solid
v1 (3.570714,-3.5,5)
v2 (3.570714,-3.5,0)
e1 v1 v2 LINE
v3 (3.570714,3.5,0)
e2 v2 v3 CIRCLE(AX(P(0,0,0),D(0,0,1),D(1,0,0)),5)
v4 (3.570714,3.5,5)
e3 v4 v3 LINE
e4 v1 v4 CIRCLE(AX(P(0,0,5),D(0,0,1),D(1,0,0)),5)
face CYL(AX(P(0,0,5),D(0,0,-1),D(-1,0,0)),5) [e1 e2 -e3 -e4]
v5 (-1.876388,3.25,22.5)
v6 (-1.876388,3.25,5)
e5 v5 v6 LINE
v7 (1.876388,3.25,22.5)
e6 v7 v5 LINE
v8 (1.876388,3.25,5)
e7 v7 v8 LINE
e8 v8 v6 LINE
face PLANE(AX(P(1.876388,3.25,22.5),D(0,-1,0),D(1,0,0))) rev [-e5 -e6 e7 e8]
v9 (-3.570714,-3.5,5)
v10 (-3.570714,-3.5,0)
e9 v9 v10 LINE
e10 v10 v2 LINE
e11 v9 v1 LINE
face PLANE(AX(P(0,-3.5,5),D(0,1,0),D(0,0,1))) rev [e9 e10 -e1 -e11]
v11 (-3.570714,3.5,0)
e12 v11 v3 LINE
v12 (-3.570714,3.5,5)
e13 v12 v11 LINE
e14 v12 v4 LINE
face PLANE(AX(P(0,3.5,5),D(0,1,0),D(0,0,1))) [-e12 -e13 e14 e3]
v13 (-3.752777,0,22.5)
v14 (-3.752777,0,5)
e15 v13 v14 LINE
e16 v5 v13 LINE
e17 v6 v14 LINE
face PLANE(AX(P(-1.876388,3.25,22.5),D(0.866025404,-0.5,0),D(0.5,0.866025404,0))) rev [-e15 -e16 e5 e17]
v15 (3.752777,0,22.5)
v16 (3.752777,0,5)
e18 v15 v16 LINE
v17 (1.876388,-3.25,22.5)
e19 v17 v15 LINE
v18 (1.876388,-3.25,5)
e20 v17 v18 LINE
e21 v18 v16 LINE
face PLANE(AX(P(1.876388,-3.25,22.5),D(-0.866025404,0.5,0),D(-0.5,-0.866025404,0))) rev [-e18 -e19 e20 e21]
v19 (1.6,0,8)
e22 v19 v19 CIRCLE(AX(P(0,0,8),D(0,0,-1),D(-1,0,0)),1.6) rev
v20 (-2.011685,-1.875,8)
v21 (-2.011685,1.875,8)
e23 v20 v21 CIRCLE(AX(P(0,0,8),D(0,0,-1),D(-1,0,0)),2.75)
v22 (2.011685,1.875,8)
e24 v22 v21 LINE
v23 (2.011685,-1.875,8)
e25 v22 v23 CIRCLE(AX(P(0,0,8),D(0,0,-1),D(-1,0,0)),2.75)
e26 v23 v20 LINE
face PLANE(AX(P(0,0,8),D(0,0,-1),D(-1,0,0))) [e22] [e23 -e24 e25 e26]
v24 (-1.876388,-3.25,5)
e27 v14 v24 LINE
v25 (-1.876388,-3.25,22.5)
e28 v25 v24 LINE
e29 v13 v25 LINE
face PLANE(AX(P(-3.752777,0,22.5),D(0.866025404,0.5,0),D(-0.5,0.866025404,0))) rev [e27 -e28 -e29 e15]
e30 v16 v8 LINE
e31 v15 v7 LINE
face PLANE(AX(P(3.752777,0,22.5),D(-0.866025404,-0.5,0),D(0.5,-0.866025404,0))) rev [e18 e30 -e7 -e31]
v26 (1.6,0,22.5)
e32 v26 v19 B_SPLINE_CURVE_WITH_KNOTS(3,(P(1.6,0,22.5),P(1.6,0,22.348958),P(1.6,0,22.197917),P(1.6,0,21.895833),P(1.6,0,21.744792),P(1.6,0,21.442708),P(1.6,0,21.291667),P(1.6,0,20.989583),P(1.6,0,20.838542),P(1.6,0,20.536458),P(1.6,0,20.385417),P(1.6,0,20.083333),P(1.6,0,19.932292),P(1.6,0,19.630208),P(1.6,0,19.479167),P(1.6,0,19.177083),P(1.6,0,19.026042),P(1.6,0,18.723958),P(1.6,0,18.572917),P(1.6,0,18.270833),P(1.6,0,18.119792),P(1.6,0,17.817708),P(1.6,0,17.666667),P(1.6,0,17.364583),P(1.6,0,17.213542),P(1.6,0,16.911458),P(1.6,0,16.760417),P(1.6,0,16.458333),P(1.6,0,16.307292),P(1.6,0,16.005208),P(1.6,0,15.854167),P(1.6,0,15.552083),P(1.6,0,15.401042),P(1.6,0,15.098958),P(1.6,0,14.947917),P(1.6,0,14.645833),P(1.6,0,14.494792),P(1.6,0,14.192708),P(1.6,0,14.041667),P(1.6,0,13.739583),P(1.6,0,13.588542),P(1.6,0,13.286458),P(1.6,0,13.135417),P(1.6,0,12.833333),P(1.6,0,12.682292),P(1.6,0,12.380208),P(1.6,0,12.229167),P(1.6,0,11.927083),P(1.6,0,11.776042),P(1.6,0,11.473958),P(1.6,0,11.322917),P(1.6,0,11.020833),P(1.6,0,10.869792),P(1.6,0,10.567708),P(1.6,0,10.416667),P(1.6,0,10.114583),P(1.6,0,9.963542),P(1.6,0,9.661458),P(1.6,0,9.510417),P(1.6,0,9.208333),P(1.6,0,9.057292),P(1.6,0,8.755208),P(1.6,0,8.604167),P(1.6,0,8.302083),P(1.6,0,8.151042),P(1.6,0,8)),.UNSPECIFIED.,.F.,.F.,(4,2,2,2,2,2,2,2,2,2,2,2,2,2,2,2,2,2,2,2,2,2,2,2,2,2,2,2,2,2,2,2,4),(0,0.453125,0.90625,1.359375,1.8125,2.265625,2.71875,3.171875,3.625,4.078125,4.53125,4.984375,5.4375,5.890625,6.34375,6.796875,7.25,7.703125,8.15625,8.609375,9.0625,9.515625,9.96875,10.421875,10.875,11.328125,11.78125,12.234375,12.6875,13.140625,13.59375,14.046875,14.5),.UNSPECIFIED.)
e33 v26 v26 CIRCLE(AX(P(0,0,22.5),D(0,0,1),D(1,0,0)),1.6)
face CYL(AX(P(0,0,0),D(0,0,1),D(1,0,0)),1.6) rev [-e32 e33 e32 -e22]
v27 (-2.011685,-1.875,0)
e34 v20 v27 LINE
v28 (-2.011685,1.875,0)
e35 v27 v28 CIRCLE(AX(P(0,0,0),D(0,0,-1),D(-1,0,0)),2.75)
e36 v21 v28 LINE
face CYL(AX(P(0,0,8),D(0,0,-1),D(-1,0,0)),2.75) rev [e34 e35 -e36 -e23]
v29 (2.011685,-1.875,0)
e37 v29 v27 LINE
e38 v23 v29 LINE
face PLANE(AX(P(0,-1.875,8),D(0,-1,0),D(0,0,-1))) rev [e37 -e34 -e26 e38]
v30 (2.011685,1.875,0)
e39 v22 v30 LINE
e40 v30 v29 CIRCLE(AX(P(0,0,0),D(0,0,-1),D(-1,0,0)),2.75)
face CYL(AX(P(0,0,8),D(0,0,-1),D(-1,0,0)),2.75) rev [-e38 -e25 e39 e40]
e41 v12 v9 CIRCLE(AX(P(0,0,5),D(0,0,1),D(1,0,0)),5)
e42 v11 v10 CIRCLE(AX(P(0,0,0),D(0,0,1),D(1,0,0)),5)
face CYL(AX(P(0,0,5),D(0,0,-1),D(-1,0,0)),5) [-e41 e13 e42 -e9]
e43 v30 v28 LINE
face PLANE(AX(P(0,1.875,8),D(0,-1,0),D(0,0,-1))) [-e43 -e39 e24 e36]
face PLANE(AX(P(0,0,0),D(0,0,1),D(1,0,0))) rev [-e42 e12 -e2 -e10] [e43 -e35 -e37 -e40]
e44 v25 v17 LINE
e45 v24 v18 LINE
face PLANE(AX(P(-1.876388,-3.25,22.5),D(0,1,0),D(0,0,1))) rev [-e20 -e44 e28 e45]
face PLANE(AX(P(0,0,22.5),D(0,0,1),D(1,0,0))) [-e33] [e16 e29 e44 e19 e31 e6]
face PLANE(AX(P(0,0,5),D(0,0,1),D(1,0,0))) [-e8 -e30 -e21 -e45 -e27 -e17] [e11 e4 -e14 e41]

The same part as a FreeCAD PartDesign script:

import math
import FreeCAD as App
import Part
import Sketcher

V = App.Vector
Q = App.Units.Quantity


def add_polygon(sketch, points):
    """Adds a closed chain of lines whose ends are joined by coincident constraints."""
    first, n = sketch.GeometryCount, len(points)
    for a, b in zip(points, points[1:] + points[:1]):
        sketch.addGeometry(Part.LineSegment(App.Vector(*a, 0), App.Vector(*b, 0)), False)
    for i in range(n):
        sketch.addConstraint(Sketcher.Constraint("Coincident", first + i, 2, first + (i + 1) % n, 1))

doc = App.newDocument("Part")
body = doc.addObject("PartDesign::Body", "Body")

# Sketch on XY plane
sketch1 = body.newObject("Sketcher::SketchObject", "Sketch")
sketch1.AttachmentSupport = (doc.getObject("XY_Plane"), [""])
sketch1.MapMode = "FlatFace"
sketch1.addGeometry(Part.ArcOfCircle(Part.Circle(V(0, 0, 0), V(0, 0, 1), 5), math.radians(135.572996), math.radians(180)), False)
sketch1.addGeometry(Part.ArcOfCircle(Part.Circle(V(0, 0, 0), V(0, 0, 1), 5), math.radians(-180), math.radians(-135.572996)), False)
sketch1.addGeometry(Part.LineSegment(V(-3.570714, -3.5, 0), V(3.570714, -3.5, 0)), False)
sketch1.addGeometry(Part.ArcOfCircle(Part.Circle(V(0, 0, 0), V(0, 0, 1), 5), math.radians(-44.427004), math.radians(0)), False)
sketch1.addGeometry(Part.ArcOfCircle(Part.Circle(V(0, 0, 0), V(0, 0, 1), 5), math.radians(0), math.radians(44.427004)), False)
sketch1.addGeometry(Part.LineSegment(V(3.570714, 3.5, 0), V(-3.570714, 3.5, 0)), False)
sketch1.addConstraint(Sketcher.Constraint("Tangent", 0, 2, 1, 1))
sketch1.addConstraint(Sketcher.Constraint("Coincident", 1, 2, 2, 1))
sketch1.addConstraint(Sketcher.Constraint("Coincident", 2, 2, 3, 1))
sketch1.addConstraint(Sketcher.Constraint("Tangent", 3, 2, 4, 1))
sketch1.addConstraint(Sketcher.Constraint("Coincident", 4, 2, 5, 1))
sketch1.addConstraint(Sketcher.Constraint("Coincident", 5, 2, 0, 1))
sketch1.addConstraint(Sketcher.Constraint("Horizontal", 2))
sketch1.addConstraint(Sketcher.Constraint("Horizontal", 5))
sketch1.addConstraint(Sketcher.Constraint("Coincident", 0, 3, -1, 1))
sketch1.addConstraint(Sketcher.Constraint("Coincident", 3, 3, -1, 1))
sketch1.addConstraint(Sketcher.Constraint("Equal", 0, 1))
sketch1.addConstraint(Sketcher.Constraint("Equal", 1, 3))
sketch1.addConstraint(Sketcher.Constraint("Equal", 3, 4))
sketch1.addConstraint(Sketcher.Constraint("PointOnObject", 0, 2, -1))
sketch1.addConstraint(Sketcher.Constraint("PointOnObject", 3, 2, -1))
sketch1.addConstraint(Sketcher.Constraint("Vertical", 2, 2, 4, 2))
sketch1.addConstraint(Sketcher.Constraint("Radius", 0, Q("5 mm")))
sketch1.addConstraint(Sketcher.Constraint("DistanceY", 1, 2, -1, 1, Q("3.5 mm")))
pad1 = body.newObject("PartDesign::Pad", "Pad")
pad1.Profile = sketch1
pad1.Length = 5

# Sketch on XY plane
sketch2 = body.newObject("Sketcher::SketchObject", "Sketch001")
sketch2.AttachmentSupport = (doc.getObject("XY_Plane"), [""])
sketch2.MapMode = "FlatFace"
sketch2.AttachmentOffset = App.Placement(V(0, 0, 5), App.Rotation())
add_polygon(sketch2, [(1.876388, 3.25), (-1.876388, 3.25), (-3.752777, 0), (-1.876388, -3.25), (1.876388, -3.25), (3.752777, 0)])  # lines 0-5
sketch2.addConstraint(Sketcher.Constraint("Horizontal", 0))
sketch2.addConstraint(Sketcher.Constraint("Horizontal", 3))
sketch2.addConstraint(Sketcher.Constraint("Symmetric", 0, 2, 3, 2, -1, 1))
sketch2.addConstraint(Sketcher.Constraint("Symmetric", 1, 2, 4, 2, -1, 1))
sketch2.addConstraint(Sketcher.Constraint("PointOnObject", 1, 2, -1))
sketch2.addConstraint(Sketcher.Constraint("Parallel", 2, 5))
sketch2.addConstraint(Sketcher.Constraint("Vertical", 0, 2, 2, 2))
sketch2.addConstraint(Sketcher.Constraint("Angle", 1, Q("-120 deg")))
sketch2.addConstraint(Sketcher.Constraint("DistanceY", 2, 2, 0, 2, Q("6.5 mm")))
sketch2.addConstraint(Sketcher.Constraint("DistanceX", 0, 2, 0, 1, Q("3.752777 mm")))
pad2 = body.newObject("PartDesign::Pad", "Pad001")
pad2.Profile = sketch2
pad2.Length = 17.5

# Sketch on XY plane
sketch3 = body.newObject("Sketcher::SketchObject", "Sketch002")
sketch3.AttachmentSupport = (doc.getObject("XY_Plane"), [""])
sketch3.MapMode = "FlatFace"
sketch3.AttachmentOffset = App.Placement(V(0, 0, 22.5), App.Rotation())
sketch3.addGeometry(Part.Circle(V(0, 0, 0), V(0, 0, 1), 1.6), False)
sketch3.addConstraint(Sketcher.Constraint("Coincident", 0, 3, -1, 1))
sketch3.addConstraint(Sketcher.Constraint("Diameter", 0, Q("3.2 mm")))
pocket1 = body.newObject("PartDesign::Pocket", "Pocket")
pocket1.Profile = sketch3
pocket1.Type = "ThroughAll"

# Sketch on XY plane
sketch4 = body.newObject("Sketcher::SketchObject", "Sketch003")
sketch4.AttachmentSupport = (doc.getObject("XY_Plane"), [""])
sketch4.MapMode = "FlatFace"
sketch4.AttachmentOffset = App.Placement(V(0, 0, 8), App.Rotation())
sketch4.addGeometry(Part.LineSegment(V(-2.011685, 1.875, 0), V(2.011685, 1.875, 0)), False)
sketch4.addGeometry(Part.ArcOfCircle(Part.Circle(V(0, 0, 0), V(0, 0, 1), 2.75), math.radians(0), math.radians(42.985886)), False)
sketch4.addGeometry(Part.ArcOfCircle(Part.Circle(V(0, 0, 0), V(0, 0, 1), 2.75), math.radians(-42.985886), math.radians(0)), False)
sketch4.addGeometry(Part.LineSegment(V(2.011685, -1.875, 0), V(-2.011685, -1.875, 0)), False)
sketch4.addGeometry(Part.ArcOfCircle(Part.Circle(V(0, 0, 0), V(0, 0, 1), 2.75), math.radians(-180), math.radians(-137.014114)), False)
sketch4.addGeometry(Part.ArcOfCircle(Part.Circle(V(0, 0, 0), V(0, 0, 1), 2.75), math.radians(137.014114), math.radians(180)), False)
sketch4.addGeometry(Part.Circle(V(0, 0, 0), V(0, 0, 1), 1.6), False)
sketch4.addConstraint(Sketcher.Constraint("Coincident", 0, 2, 1, 2))
sketch4.addConstraint(Sketcher.Constraint("Tangent", 1, 1, 2, 2))
sketch4.addConstraint(Sketcher.Constraint("Coincident", 2, 1, 3, 1))
sketch4.addConstraint(Sketcher.Constraint("Coincident", 3, 2, 4, 2))
sketch4.addConstraint(Sketcher.Constraint("Tangent", 4, 1, 5, 2))
sketch4.addConstraint(Sketcher.Constraint("Coincident", 5, 1, 0, 1))
sketch4.addConstraint(Sketcher.Constraint("Horizontal", 0))
sketch4.addConstraint(Sketcher.Constraint("Horizontal", 3))
sketch4.addConstraint(Sketcher.Constraint("Coincident", 1, 3, -1, 1))
sketch4.addConstraint(Sketcher.Constraint("Coincident", 4, 3, -1, 1))
sketch4.addConstraint(Sketcher.Constraint("Coincident", 6, 3, -1, 1))
sketch4.addConstraint(Sketcher.Constraint("Equal", 1, 2))
sketch4.addConstraint(Sketcher.Constraint("Equal", 2, 4))
sketch4.addConstraint(Sketcher.Constraint("Equal", 4, 5))
sketch4.addConstraint(Sketcher.Constraint("PointOnObject", 1, 1, -1))
sketch4.addConstraint(Sketcher.Constraint("PointOnObject", 4, 1, -1))
sketch4.addConstraint(Sketcher.Constraint("Vertical", 0, 2, 2, 1))
sketch4.addConstraint(Sketcher.Constraint("Diameter", 6, Q("3.2 mm")))
sketch4.addConstraint(Sketcher.Constraint("Radius", 1, Q("2.75 mm")))
sketch4.addConstraint(Sketcher.Constraint("DistanceY", -1, 1, 0, 2, Q("1.875 mm")))
pocket2 = body.newObject("PartDesign::Pocket", "Pocket001")
pocket2.Profile = sketch4
pocket2.Length = 8

doc.recompute()
